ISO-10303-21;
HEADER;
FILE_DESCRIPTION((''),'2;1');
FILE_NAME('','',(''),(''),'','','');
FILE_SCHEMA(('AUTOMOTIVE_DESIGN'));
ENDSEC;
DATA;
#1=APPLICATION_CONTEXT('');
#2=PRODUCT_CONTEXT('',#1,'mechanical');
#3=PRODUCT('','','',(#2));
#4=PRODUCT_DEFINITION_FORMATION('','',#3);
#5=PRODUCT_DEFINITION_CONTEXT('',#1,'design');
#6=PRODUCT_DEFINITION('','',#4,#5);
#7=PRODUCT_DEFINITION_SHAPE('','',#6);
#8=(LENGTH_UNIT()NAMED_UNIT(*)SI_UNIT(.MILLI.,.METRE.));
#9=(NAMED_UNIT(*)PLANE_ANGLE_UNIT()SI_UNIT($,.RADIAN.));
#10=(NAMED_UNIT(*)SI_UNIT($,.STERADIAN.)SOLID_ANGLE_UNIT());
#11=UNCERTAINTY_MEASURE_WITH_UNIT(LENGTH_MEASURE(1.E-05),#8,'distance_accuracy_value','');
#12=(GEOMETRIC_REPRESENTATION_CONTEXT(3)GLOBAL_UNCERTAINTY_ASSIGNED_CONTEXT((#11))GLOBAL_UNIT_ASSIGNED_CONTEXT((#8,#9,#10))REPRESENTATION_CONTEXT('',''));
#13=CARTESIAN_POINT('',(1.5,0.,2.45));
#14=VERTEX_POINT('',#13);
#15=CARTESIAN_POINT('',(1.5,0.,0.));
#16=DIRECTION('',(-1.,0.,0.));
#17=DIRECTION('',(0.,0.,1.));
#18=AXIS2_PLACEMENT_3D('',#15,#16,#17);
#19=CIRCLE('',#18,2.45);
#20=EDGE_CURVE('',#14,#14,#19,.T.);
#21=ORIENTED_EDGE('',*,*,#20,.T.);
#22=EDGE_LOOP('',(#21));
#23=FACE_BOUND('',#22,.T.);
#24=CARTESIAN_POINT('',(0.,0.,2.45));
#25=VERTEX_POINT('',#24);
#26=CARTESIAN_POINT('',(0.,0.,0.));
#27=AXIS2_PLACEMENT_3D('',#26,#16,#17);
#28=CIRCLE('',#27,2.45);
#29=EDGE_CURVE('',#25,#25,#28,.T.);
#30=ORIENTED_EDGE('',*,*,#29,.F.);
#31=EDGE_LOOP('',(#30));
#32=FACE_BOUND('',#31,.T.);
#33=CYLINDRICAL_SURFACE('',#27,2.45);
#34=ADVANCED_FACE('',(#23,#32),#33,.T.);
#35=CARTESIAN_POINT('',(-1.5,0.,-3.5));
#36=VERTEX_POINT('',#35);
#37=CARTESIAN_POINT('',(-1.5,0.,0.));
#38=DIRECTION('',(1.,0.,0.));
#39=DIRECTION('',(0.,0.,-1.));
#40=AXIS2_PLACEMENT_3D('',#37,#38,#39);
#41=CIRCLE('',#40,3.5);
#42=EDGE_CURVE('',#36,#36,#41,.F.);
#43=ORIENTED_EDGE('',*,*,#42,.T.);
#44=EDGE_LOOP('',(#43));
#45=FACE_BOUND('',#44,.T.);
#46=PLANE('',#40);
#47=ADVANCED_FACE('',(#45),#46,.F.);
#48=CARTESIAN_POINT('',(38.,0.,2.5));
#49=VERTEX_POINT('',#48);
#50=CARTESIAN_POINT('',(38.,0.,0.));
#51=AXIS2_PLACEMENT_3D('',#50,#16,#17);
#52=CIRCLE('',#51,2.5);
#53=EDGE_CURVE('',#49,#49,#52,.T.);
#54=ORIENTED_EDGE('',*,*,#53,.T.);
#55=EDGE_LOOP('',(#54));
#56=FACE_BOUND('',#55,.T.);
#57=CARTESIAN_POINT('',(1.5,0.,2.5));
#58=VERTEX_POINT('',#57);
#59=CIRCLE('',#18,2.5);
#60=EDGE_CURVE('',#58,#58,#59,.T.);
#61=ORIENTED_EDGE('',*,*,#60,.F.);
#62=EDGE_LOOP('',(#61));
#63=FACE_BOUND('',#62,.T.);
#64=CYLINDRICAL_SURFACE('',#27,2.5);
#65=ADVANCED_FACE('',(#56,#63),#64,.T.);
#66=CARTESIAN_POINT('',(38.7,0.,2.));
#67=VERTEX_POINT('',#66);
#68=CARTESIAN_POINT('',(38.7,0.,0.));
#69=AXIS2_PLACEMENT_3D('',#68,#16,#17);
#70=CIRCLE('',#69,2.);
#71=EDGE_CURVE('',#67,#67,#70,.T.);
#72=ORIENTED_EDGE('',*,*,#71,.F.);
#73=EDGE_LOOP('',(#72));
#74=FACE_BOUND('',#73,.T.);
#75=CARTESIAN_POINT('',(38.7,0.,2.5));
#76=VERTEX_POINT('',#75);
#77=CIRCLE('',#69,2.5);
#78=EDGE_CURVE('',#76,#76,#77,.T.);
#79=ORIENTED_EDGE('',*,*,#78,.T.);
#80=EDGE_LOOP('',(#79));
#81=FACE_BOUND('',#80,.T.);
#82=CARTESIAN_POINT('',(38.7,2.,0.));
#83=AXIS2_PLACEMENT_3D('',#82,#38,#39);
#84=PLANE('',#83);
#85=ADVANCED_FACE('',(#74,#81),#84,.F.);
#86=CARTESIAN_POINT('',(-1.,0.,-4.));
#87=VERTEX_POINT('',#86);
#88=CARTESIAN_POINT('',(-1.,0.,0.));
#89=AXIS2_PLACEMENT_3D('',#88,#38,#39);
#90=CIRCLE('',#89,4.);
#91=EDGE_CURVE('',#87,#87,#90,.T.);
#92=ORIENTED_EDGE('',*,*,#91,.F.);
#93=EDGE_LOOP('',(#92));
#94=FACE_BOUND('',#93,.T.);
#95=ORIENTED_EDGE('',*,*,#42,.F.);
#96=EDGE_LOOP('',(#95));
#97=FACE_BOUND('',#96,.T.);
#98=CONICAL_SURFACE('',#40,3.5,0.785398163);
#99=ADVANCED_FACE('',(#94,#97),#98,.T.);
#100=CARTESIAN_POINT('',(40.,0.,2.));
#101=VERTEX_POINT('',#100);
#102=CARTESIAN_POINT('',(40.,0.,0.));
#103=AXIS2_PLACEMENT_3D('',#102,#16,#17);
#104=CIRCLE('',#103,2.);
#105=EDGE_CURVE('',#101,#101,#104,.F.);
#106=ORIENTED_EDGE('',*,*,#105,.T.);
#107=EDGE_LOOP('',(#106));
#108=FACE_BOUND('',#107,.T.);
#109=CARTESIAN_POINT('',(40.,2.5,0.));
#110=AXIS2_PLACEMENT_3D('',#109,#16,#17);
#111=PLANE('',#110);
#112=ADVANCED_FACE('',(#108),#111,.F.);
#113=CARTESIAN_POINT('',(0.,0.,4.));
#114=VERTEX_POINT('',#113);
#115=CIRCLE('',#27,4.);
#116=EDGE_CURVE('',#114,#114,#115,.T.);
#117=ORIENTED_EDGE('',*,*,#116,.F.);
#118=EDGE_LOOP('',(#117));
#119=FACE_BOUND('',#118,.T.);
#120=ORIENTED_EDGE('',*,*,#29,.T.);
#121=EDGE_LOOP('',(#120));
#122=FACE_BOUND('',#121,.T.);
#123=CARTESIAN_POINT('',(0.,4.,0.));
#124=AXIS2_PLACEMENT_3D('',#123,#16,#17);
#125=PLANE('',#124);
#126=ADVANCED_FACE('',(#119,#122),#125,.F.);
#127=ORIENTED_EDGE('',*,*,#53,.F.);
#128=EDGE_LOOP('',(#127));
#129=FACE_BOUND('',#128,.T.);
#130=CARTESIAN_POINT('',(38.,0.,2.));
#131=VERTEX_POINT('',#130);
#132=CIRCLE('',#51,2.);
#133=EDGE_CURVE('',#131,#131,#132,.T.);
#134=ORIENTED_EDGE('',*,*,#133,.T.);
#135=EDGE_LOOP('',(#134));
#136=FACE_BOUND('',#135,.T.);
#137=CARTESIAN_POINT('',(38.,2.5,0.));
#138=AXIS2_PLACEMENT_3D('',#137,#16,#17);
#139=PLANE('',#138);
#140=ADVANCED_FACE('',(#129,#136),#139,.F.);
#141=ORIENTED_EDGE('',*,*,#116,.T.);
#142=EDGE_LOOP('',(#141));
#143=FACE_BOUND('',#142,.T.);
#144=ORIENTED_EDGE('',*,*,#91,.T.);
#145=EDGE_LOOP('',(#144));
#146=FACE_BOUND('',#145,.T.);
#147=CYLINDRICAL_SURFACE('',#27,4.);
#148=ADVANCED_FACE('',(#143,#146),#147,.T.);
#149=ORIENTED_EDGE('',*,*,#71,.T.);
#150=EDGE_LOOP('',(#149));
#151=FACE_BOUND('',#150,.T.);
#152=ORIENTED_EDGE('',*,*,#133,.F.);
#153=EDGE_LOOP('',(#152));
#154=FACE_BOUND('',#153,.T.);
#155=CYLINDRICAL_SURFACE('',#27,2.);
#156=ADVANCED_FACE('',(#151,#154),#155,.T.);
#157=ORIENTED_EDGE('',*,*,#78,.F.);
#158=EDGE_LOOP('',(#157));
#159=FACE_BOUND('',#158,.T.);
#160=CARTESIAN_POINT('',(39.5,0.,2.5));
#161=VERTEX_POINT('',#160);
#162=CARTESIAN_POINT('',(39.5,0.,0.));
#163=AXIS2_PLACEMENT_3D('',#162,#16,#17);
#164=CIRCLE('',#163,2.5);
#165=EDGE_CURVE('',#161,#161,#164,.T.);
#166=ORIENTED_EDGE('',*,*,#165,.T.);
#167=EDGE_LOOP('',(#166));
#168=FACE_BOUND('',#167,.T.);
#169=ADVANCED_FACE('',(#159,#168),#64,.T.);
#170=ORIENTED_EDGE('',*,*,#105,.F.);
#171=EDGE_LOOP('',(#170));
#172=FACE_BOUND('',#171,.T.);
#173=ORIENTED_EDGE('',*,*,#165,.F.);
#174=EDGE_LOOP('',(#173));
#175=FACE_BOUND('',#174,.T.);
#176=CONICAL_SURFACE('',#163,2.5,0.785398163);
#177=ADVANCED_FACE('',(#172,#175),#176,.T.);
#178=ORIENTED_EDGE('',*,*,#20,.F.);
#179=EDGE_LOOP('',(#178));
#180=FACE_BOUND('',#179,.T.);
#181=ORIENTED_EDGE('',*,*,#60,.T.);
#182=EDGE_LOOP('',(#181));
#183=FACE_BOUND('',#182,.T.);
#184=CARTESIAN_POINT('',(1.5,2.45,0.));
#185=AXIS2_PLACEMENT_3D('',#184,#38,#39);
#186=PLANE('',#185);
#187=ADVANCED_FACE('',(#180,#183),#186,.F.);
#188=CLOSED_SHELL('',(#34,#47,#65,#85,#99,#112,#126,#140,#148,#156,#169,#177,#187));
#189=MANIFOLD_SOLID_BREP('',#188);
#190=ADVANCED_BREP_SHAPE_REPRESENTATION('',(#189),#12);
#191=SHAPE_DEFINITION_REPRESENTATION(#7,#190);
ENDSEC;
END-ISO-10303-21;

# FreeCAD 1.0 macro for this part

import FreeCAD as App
import Part
import Sketcher

V = App.Vector
Q = App.Units.Quantity


def edges_at(feature, points):
    """Names of the edges that pass closest to the given points."""
    edges = feature.Shape.Edges
    near = lambda p: min(range(len(edges)), key=lambda i: edges[i].distToShape(Part.Vertex(*p))[0])
    return sorted({f"Edge{near(p) + 1}" for p in points})


def add_polygon(sketch, points):
    """Adds a closed chain of lines whose ends are joined by coincident constraints."""
    first, n = sketch.GeometryCount, len(points)
    for a, b in zip(points, points[1:] + points[:1]):
        sketch.addGeometry(Part.LineSegment(App.Vector(*a, 0), App.Vector(*b, 0)), False)
    for i in range(n):
        sketch.addConstraint(Sketcher.Constraint("Coincident", first + i, 2, first + (i + 1) % n, 1))

doc = App.newDocument("Part")
body = doc.addObject("PartDesign::Body", "Body")

sketch1 = doc.addObject("Sketcher::SketchObject", "Sketch")
body.addObject(sketch1)
sketch1.AttachmentSupport = (doc.XY_Plane, [""])
sketch1.MapMode = "FlatFace"
add_polygon(sketch1, [(-1.5, 4), (-1.5, 0), (40, 0), (40, 2.5), (38.7, 2.5), (38.7, 2), (38, 2), (38, 2.5), (1.5, 2.5), (1.5, 2.45), (0, 2.45), (0, 4)])
sketch1.addConstraint([
    Sketcher.Constraint("Vertical", 0),
    Sketcher.Constraint("Horizontal", 1),
    Sketcher.Constraint("Vertical", 2),
    Sketcher.Constraint("Horizontal", 3),
    Sketcher.Constraint("Vertical", 4),
    Sketcher.Constraint("Horizontal", 5),
    Sketcher.Constraint("Vertical", 6),
    Sketcher.Constraint("Horizontal", 7),
    Sketcher.Constraint("Vertical", 8),
    Sketcher.Constraint("Horizontal", 9),
    Sketcher.Constraint("Vertical", 10),
    Sketcher.Constraint("Horizontal", 11),
    Sketcher.Constraint("PointOnObject", 0, 2, -1),
    Sketcher.Constraint("PointOnObject", 9, 2, -2),
    Sketcher.Constraint("Horizontal", 3, 2, 6, 2),
    Sketcher.Constraint("Equal", 9, 11),
    Sketcher.Constraint("DistanceY", 0, 2, 0, 1, Q("4 mm")),
    Sketcher.Constraint("DistanceX", 1, 1, 1, 2, Q("41.5 mm")),
    Sketcher.Constraint("DistanceX", 3, 2, 3, 1, Q("1.3 mm")),
    Sketcher.Constraint("DistanceX", 5, 2, 5, 1, Q("0.7 mm")),
    Sketcher.Constraint("DistanceX", 7, 2, 7, 1, Q("36.5 mm")),
    Sketcher.Constraint("DistanceY", 2, 1, 2, 2, Q("2.5 mm")),
    Sketcher.Constraint("DistanceY", 4, 2, 4, 1, Q("0.5 mm")),
    Sketcher.Constraint("DistanceY", 8, 2, 8, 1, Q("0.05 mm")),
])
revolution = doc.addObject("PartDesign::Revolution", "Revolution")
body.addObject(revolution)
revolution.Profile = sketch1
revolution.ReferenceAxis = (sketch1, ["H_Axis"])
revolution.Angle = 360
doc.recompute()

chamfer = doc.addObject("PartDesign::Chamfer", "Chamfer")
body.addObject(chamfer)
chamfer.Base = (revolution, edges_at(revolution, [(-1.5, 0, -4), (40, 0, -2.5)]))
chamfer.Size = 0.5

doc.recompute()
